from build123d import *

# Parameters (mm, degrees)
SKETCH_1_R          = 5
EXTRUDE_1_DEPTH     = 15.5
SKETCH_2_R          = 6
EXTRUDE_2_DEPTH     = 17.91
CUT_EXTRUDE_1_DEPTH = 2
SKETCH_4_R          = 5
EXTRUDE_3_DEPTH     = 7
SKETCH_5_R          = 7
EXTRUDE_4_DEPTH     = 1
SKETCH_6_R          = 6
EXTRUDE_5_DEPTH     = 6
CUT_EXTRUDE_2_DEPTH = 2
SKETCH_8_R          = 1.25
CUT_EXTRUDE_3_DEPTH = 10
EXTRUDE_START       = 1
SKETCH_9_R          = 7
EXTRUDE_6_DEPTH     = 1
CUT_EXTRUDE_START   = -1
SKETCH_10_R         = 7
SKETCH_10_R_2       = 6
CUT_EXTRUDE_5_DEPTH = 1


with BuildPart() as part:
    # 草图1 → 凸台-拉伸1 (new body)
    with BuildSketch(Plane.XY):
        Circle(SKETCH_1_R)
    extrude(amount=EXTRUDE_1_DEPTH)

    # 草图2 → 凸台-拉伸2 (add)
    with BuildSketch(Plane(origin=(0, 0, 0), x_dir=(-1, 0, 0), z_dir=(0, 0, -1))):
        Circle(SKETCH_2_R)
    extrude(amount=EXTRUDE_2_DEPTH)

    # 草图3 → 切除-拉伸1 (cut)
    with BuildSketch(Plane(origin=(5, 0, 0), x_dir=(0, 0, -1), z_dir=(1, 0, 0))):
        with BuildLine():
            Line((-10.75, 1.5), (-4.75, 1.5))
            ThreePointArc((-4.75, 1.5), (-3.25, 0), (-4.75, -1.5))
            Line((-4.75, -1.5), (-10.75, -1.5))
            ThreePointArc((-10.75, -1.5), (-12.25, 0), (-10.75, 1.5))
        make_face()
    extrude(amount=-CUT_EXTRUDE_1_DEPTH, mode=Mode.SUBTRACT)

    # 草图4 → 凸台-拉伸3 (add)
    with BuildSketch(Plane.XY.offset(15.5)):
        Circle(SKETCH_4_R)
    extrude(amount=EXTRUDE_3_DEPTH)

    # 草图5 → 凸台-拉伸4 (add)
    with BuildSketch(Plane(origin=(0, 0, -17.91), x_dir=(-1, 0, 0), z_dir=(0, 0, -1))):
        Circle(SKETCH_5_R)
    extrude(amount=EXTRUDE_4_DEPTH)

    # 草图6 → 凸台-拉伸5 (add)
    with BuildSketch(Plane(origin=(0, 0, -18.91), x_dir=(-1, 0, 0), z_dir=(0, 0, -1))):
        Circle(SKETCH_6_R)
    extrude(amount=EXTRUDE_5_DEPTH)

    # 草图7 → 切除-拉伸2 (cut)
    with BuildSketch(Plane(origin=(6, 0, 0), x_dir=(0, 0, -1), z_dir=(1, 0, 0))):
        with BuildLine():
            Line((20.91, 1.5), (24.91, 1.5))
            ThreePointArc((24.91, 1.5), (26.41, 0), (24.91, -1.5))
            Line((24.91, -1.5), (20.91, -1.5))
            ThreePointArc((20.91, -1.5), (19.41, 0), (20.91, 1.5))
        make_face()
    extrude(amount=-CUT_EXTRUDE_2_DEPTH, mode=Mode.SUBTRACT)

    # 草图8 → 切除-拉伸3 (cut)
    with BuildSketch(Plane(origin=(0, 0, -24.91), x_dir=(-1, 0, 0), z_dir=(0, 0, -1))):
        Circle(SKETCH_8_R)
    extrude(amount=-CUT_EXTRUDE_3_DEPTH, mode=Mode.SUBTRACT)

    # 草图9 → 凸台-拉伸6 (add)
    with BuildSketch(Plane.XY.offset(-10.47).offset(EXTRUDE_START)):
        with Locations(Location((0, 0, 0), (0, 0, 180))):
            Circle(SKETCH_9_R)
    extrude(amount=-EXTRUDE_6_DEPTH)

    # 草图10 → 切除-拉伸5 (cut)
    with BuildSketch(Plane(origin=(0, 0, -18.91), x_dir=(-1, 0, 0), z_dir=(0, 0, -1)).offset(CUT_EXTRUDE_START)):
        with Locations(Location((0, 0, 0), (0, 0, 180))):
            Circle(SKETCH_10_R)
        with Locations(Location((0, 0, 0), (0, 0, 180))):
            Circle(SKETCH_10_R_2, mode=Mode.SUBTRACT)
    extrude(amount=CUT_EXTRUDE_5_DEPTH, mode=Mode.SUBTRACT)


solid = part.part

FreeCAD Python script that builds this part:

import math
import FreeCAD as App
import Part
import Sketcher

V = App.Vector
Q = App.Units.Quantity

doc = App.newDocument("Part")
params = doc.addObject("Spreadsheet::Sheet", "Params")
for row, (alias, value) in enumerate([
    ("sketch1_diameter", "10 mm"),
    ("pad1_length", "15.5 mm"),
    ("sketch2_diameter", "12 mm"),
    ("pad2_length", "17.91 mm"),
    ("sketch3_radius", "1.5 mm"),
    ("sketch3_height", "6 mm"),
    ("pocket1_length", "2 mm"),
    ("sketch4_diameter", "10 mm"),
    ("pad3_length", "7 mm"),
    ("sketch5_diameter", "14 mm"),
    ("pad4_length", "1 mm"),
    ("sketch6_diameter", "12 mm"),
    ("pad5_length", "6 mm"),
    ("sketch7_radius", "1.5 mm"),
    ("sketch7_height", "4 mm"),
    ("pocket2_length", "2 mm"),
    ("sketch8_diameter", "2.5 mm"),
    ("pocket3_length", "10 mm"),
    ("sketch9_diameter", "14 mm"),
    ("pad6_length", "1 mm"),
    ("sketch10_diameter", "14 mm"),
    ("sketch10_diameter2", "12 mm"),
    ("pocket4_length", "1 mm"),
], start=1):
    params.set(f"A{row}", alias)
    params.set(f"B{row}", "=" + value)
    params.setAlias(f"B{row}", alias)

body = doc.addObject("PartDesign::Body", "Body")

# Sketch on XY plane
sketch1 = doc.addObject("Sketcher::SketchObject", "Sketch")
body.addObject(sketch1)
sketch1.AttachmentSupport = (doc.XY_Plane, [""])
sketch1.MapMode = "FlatFace"
sketch1.addGeometry(Part.Circle(V(0, 0, 0), V(0, 0, 1), 5), False)
sketch1.addConstraint([
    Sketcher.Constraint("Coincident", 0, 3, -1, 1),
    Sketcher.Constraint("Diameter", 0, Q("10 mm")),
])
sketch1.setExpression("Constraints[1]", "Params.sketch1_diameter")
pad1 = doc.addObject("PartDesign::Pad", "Pad")
body.addObject(pad1)
pad1.Profile = sketch1
pad1.setExpression("Length", "Params.pad1_length")

# Sketch on XY plane
sketch2 = doc.addObject("Sketcher::SketchObject", "Sketch001")
body.addObject(sketch2)
sketch2.AttachmentSupport = (doc.XY_Plane, [""])
sketch2.MapMode = "FlatFace"
sketch2.addGeometry(Part.Circle(V(0, 0, 0), V(0, 0, 1), 6), False)
sketch2.addConstraint([
    Sketcher.Constraint("Coincident", 0, 3, -1, 1),
    Sketcher.Constraint("Diameter", 0, Q("12 mm")),
])
sketch2.setExpression("Constraints[1]", "Params.sketch2_diameter")
pad2 = doc.addObject("PartDesign::Pad", "Pad001")
body.addObject(pad2)
pad2.Profile = sketch2
pad2.setExpression("Length", "Params.pad2_length")
pad2.Reversed = True

# Sketch on YZ plane
sketch3 = doc.addObject("Sketcher::SketchObject", "Sketch002")
body.addObject(sketch3)
sketch3.AttachmentSupport = (doc.YZ_Plane, [""])
sketch3.MapMode = "FlatFace"
sketch3.AttachmentOffset = App.Placement(V(0, 0, 5), App.Rotation())
sketch3.addGeometry([
    Part.LineSegment(V(1.5, 4.75, 0), V(1.5, 10.75, 0)),
    Part.ArcOfCircle(Part.Circle(V(0, 10.75, 0), V(0, 0, 1), 1.5), math.radians(0), math.radians(180)),
    Part.LineSegment(V(-1.5, 10.75, 0), V(-1.5, 4.75, 0)),
    Part.ArcOfCircle(Part.Circle(V(0, 4.75, 0), V(0, 0, 1), 1.5), math.radians(180), math.radians(360)),
], False)
sketch3.addConstraint([
    Sketcher.Constraint("Tangent", 0, 2, 1, 1),
    Sketcher.Constraint("Tangent", 1, 2, 2, 1),
    Sketcher.Constraint("Tangent", 2, 2, 3, 1),
    Sketcher.Constraint("Tangent", 3, 2, 0, 1),
    Sketcher.Constraint("Vertical", 0),
    Sketcher.Constraint("Vertical", 2),
    Sketcher.Constraint("PointOnObject", 1, 3, -2),
    Sketcher.Constraint("Radius", 1, Q("1.5 mm")),
    Sketcher.Constraint("DistanceY", 0, 1, 0, 2, Q("6 mm")),
    Sketcher.Constraint("DistanceY", -1, 1, 1, 3, Q("10.75 mm")),
])
sketch3.setExpression("Constraints[7]", "Params.sketch3_radius")
sketch3.setExpression("Constraints[8]", "Params.sketch3_height")
pocket1 = doc.addObject("PartDesign::Pocket", "Pocket")
body.addObject(pocket1)
pocket1.Profile = sketch3
pocket1.setExpression("Length", "Params.pocket1_length")

# Sketch on XY plane
sketch4 = doc.addObject("Sketcher::SketchObject", "Sketch003")
body.addObject(sketch4)
sketch4.AttachmentSupport = (doc.XY_Plane, [""])
sketch4.MapMode = "FlatFace"
sketch4.AttachmentOffset = App.Placement(V(0, 0, 15.5), App.Rotation())
sketch4.addGeometry(Part.Circle(V(0, 0, 0), V(0, 0, 1), 5), False)
sketch4.addConstraint([
    Sketcher.Constraint("Coincident", 0, 3, -1, 1),
    Sketcher.Constraint("Diameter", 0, Q("10 mm")),
])
sketch4.setExpression("Constraints[1]", "Params.sketch4_diameter")
pad3 = doc.addObject("PartDesign::Pad", "Pad002")
body.addObject(pad3)
pad3.Profile = sketch4
pad3.setExpression("Length", "Params.pad3_length")

# Sketch on XY plane
sketch5 = doc.addObject("Sketcher::SketchObject", "Sketch004")
body.addObject(sketch5)
sketch5.AttachmentSupport = (doc.XY_Plane, [""])
sketch5.MapMode = "FlatFace"
sketch5.AttachmentOffset = App.Placement(V(0, 0, -17.91), App.Rotation())
sketch5.addGeometry(Part.Circle(V(0, 0, 0), V(0, 0, 1), 7), False)
sketch5.addConstraint([
    Sketcher.Constraint("Coincident", 0, 3, -1, 1),
    Sketcher.Constraint("Diameter", 0, Q("14 mm")),
])
sketch5.setExpression("Constraints[1]", "Params.sketch5_diameter")
pad4 = doc.addObject("PartDesign::Pad", "Pad003")
body.addObject(pad4)
pad4.Profile = sketch5
pad4.setExpression("Length", "Params.pad4_length")
pad4.Reversed = True

# Sketch on XY plane
sketch6 = doc.addObject("Sketcher::SketchObject", "Sketch005")
body.addObject(sketch6)
sketch6.AttachmentSupport = (doc.XY_Plane, [""])
sketch6.MapMode = "FlatFace"
sketch6.AttachmentOffset = App.Placement(V(0, 0, -18.91), App.Rotation())
sketch6.addGeometry(Part.Circle(V(0, 0, 0), V(0, 0, 1), 6), False)
sketch6.addConstraint([
    Sketcher.Constraint("Coincident", 0, 3, -1, 1),
    Sketcher.Constraint("Diameter", 0, Q("12 mm")),
])
sketch6.setExpression("Constraints[1]", "Params.sketch6_diameter")
pad5 = doc.addObject("PartDesign::Pad", "Pad004")
body.addObject(pad5)
pad5.Profile = sketch6
pad5.setExpression("Length", "Params.pad5_length")
pad5.Reversed = True

# Sketch on YZ plane
sketch7 = doc.addObject("Sketcher::SketchObject", "Sketch006")
body.addObject(sketch7)
sketch7.AttachmentSupport = (doc.YZ_Plane, [""])
sketch7.MapMode = "FlatFace"
sketch7.AttachmentOffset = App.Placement(V(0, 0, 6), App.Rotation())
sketch7.addGeometry([
    Part.LineSegment(V(1.5, -24.91, 0), V(1.5, -20.91, 0)),
    Part.ArcOfCircle(Part.Circle(V(0, -20.91, 0), V(0, 0, 1), 1.5), math.radians(0), math.radians(180)),
    Part.LineSegment(V(-1.5, -20.91, 0), V(-1.5, -24.91, 0)),
    Part.ArcOfCircle(Part.Circle(V(0, -24.91, 0), V(0, 0, 1), 1.5), math.radians(180), math.radians(360)),
], False)
sketch7.addConstraint([
    Sketcher.Constraint("Tangent", 0, 2, 1, 1),
    Sketcher.Constraint("Tangent", 1, 2, 2, 1),
    Sketcher.Constraint("Tangent", 2, 2, 3, 1),
    Sketcher.Constraint("Tangent", 3, 2, 0, 1),
    Sketcher.Constraint("Vertical", 0),
    Sketcher.Constraint("Vertical", 2),
    Sketcher.Constraint("PointOnObject", 1, 3, -2),
    Sketcher.Constraint("Radius", 1, Q("1.5 mm")),
    Sketcher.Constraint("DistanceY", 0, 1, 0, 2, Q("4 mm")),
    Sketcher.Constraint("DistanceY", 1, 3, -1, 1, Q("20.91 mm")),
])
sketch7.setExpression("Constraints[7]", "Params.sketch7_radius")
sketch7.setExpression("Constraints[8]", "Params.sketch7_height")
pocket2 = doc.addObject("PartDesign::Pocket", "Pocket001")
body.addObject(pocket2)
pocket2.Profile = sketch7
pocket2.setExpression("Length", "Params.pocket2_length")

# Sketch on XY plane
sketch8 = doc.addObject("Sketcher::SketchObject", "Sketch007")
body.addObject(sketch8)
sketch8.AttachmentSupport = (doc.XY_Plane, [""])
sketch8.MapMode = "FlatFace"
sketch8.AttachmentOffset = App.Placement(V(0, 0, -24.91), App.Rotation())
sketch8.addGeometry(Part.Circle(V(0, 0, 0), V(0, 0, 1), 1.25), False)
sketch8.addConstraint([
    Sketcher.Constraint("Coincident", 0, 3, -1, 1),
    Sketcher.Constraint("Diameter", 0, Q("2.5 mm")),
])
sketch8.setExpression("Constraints[1]", "Params.sketch8_diameter")
pocket3 = doc.addObject("PartDesign::Pocket", "Pocket002")
body.addObject(pocket3)
pocket3.Profile = sketch8
pocket3.setExpression("Length", "Params.pocket3_length")
pocket3.Reversed = True

# Sketch on XY plane
sketch9 = doc.addObject("Sketcher::SketchObject", "Sketch008")
body.addObject(sketch9)
sketch9.AttachmentSupport = (doc.XY_Plane, [""])
sketch9.MapMode = "FlatFace"
sketch9.AttachmentOffset = App.Placement(V(0, 0, -9.47), App.Rotation())
sketch9.addGeometry(Part.Circle(V(0, 0, 0), V(0, 0, 1), 7), False)
sketch9.addConstraint([
    Sketcher.Constraint("Coincident", 0, 3, -1, 1),
    Sketcher.Constraint("Diameter", 0, Q("14 mm")),
])
sketch9.setExpression("Constraints[1]", "Params.sketch9_diameter")
pad6 = doc.addObject("PartDesign::Pad", "Pad005")
body.addObject(pad6)
pad6.Profile = sketch9
pad6.setExpression("Length", "Params.pad6_length")
pad6.Reversed = True

# Sketch on XY plane
sketch10 = doc.addObject("Sketcher::SketchObject", "Sketch009")
body.addObject(sketch10)
sketch10.AttachmentSupport = (doc.XY_Plane, [""])
sketch10.MapMode = "FlatFace"
sketch10.AttachmentOffset = App.Placement(V(0, 0, -17.91), App.Rotation())
sketch10.addGeometry([
    Part.Circle(V(0, 0, 0), V(0, 0, 1), 7),
    Part.Circle(V(0, 0, 0), V(0, 0, 1), 6),
], False)
sketch10.addConstraint([
    Sketcher.Constraint("Coincident", 0, 3, -1, 1),
    Sketcher.Constraint("Coincident", 1, 3, -1, 1),
    Sketcher.Constraint("Diameter", 0, Q("14 mm")),
    Sketcher.Constraint("Diameter", 1, Q("12 mm")),
])
sketch10.setExpression("Constraints[2]", "Params.sketch10_diameter")
sketch10.setExpression("Constraints[3]", "Params.sketch10_diameter2")
pocket4 = doc.addObject("PartDesign::Pocket", "Pocket003")
body.addObject(pocket4)
pocket4.Profile = sketch10
pocket4.setExpression("Length", "Params.pocket4_length")

doc.recompute()
